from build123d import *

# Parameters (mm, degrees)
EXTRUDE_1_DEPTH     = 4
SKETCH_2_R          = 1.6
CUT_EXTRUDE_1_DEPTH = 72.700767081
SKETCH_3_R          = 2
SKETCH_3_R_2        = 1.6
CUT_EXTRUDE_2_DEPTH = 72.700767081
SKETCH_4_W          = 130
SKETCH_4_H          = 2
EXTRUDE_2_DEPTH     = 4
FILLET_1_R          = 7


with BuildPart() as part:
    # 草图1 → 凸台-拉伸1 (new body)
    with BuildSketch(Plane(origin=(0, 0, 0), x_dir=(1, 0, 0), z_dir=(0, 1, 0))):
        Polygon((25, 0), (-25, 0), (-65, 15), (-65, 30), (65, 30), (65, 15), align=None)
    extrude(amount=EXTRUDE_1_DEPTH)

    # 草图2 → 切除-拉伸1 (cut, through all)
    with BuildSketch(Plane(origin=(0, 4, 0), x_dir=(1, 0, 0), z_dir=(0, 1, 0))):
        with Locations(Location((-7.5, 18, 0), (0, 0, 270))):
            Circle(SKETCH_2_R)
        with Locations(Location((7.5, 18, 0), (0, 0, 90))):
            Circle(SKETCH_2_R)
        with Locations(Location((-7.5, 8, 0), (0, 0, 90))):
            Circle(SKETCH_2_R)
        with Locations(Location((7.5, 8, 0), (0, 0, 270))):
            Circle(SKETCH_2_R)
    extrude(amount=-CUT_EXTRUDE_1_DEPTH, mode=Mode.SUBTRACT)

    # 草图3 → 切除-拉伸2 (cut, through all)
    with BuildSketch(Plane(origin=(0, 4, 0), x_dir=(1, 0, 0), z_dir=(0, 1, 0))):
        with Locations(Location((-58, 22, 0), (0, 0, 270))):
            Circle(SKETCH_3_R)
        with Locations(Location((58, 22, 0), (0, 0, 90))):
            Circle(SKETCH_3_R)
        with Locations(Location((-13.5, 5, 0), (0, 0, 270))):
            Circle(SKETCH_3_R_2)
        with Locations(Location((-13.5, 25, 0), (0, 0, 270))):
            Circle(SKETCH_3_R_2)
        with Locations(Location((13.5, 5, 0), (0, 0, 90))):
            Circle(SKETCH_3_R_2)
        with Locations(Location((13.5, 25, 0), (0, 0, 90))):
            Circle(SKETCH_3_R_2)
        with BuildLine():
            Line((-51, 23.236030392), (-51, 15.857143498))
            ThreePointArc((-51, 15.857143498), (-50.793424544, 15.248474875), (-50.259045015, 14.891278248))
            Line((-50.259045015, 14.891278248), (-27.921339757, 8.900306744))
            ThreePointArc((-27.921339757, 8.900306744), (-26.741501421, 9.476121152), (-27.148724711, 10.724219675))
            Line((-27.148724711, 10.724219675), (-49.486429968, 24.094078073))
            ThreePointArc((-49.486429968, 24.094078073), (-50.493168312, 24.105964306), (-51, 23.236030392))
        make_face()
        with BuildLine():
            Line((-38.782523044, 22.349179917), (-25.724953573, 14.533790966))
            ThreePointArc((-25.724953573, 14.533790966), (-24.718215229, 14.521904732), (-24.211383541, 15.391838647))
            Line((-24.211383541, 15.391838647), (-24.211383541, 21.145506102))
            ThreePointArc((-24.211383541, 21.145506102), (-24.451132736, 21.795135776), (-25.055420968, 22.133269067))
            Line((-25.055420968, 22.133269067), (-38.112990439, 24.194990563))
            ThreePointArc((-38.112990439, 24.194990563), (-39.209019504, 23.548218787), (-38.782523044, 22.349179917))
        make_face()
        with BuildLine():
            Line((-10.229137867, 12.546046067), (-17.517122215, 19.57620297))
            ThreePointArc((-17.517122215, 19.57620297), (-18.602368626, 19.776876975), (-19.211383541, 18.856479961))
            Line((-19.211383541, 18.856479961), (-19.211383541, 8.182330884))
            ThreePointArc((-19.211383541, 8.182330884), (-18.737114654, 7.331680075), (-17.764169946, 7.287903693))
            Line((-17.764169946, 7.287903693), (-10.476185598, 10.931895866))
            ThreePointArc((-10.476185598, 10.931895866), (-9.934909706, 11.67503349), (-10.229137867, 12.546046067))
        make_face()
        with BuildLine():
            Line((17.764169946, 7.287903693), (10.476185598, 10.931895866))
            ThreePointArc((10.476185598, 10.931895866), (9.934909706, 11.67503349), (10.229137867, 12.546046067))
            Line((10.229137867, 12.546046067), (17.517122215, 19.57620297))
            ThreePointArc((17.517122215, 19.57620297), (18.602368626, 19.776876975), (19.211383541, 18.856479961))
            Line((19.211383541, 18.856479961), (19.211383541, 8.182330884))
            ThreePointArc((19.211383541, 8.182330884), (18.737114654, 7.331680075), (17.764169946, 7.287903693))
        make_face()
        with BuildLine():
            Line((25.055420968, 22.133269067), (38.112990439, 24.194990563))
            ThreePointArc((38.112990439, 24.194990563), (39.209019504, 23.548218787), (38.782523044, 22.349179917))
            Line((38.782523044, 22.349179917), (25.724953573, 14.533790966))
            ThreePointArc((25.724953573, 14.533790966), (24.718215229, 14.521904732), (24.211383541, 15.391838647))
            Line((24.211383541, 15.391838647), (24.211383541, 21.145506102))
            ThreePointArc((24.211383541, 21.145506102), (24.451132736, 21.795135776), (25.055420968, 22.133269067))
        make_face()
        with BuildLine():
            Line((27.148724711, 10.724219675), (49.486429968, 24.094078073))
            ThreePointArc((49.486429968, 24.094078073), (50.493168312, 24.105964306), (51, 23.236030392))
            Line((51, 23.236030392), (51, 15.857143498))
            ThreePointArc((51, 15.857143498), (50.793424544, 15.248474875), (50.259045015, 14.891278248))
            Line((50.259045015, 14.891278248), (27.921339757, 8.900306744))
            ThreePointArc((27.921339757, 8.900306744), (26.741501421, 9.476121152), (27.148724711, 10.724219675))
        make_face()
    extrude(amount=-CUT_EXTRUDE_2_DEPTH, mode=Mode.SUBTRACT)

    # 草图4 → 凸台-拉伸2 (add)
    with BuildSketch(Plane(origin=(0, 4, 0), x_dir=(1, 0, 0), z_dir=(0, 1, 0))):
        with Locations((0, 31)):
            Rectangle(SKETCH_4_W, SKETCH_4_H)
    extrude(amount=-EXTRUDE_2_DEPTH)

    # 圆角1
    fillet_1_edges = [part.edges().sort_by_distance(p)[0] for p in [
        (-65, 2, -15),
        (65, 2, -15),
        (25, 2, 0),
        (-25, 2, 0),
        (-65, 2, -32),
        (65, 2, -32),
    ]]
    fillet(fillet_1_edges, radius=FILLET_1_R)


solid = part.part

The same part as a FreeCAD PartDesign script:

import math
import FreeCAD as App
import Part
import Sketcher
from FreeCAD import Vector


def edges_at(feature, points):
    """Names of the edges that pass closest to the given points."""
    edges = feature.Shape.Edges
    near = lambda p: min(range(len(edges)), key=lambda i: edges[i].distToShape(Part.Vertex(*p))[0])
    return sorted({f"Edge{near(p) + 1}" for p in points})

doc = App.newDocument("Part")
body = doc.addObject("PartDesign::Body", "Body")

# Sketch on XZ plane
sketch1 = doc.addObject("Sketcher::SketchObject", "Sketch")
body.addObject(sketch1)
sketch1.AttachmentSupport = (doc.XZ_Plane, [""])
sketch1.MapMode = "FlatFace"
sketch1.addGeometry(Part.LineSegment(Vector(-25, 0, 0), Vector(25, 0, 0)), False)
sketch1.addGeometry(Part.LineSegment(Vector(25, 0, 0), Vector(65, -15, 0)), False)
sketch1.addGeometry(Part.LineSegment(Vector(65, -15, 0), Vector(65, -30, 0)), False)
sketch1.addGeometry(Part.LineSegment(Vector(65, -30, 0), Vector(-65, -30, 0)), False)
sketch1.addGeometry(Part.LineSegment(Vector(-65, -30, 0), Vector(-65, -15, 0)), False)
sketch1.addGeometry(Part.LineSegment(Vector(-65, -15, 0), Vector(-25, 0, 0)), False)
sketch1.addConstraint(Sketcher.Constraint("Coincident", 0, 2, 1, 1))
sketch1.addConstraint(Sketcher.Constraint("Coincident", 1, 2, 2, 1))
sketch1.addConstraint(Sketcher.Constraint("Coincident", 2, 2, 3, 1))
sketch1.addConstraint(Sketcher.Constraint("Coincident", 3, 2, 4, 1))
sketch1.addConstraint(Sketcher.Constraint("Coincident", 4, 2, 5, 1))
sketch1.addConstraint(Sketcher.Constraint("Coincident", 5, 2, 0, 1))
sketch1.addConstraint(Sketcher.Constraint("Horizontal", 0))
sketch1.addConstraint(Sketcher.Constraint("Vertical", 2))
sketch1.addConstraint(Sketcher.Constraint("Horizontal", 3))
sketch1.addConstraint(Sketcher.Constraint("Vertical", 4))
sketch1.addConstraint(Sketcher.Constraint("Symmetric", 0, 2, 5, 2, -1, 1))
sketch1.addConstraint(Sketcher.Constraint("Symmetric", 1, 2, 4, 2, -2))
sketch1.addConstraint(Sketcher.Constraint("DistanceX", 0, 1, 0, 2, 50.0))
sketch1.addConstraint(Sketcher.Constraint("DistanceX", 3, 2, 3, 1, 130.0))
sketch1.addConstraint(Sketcher.Constraint("DistanceY", 2, 2, 2, 1, 15.0))
sketch1.addConstraint(Sketcher.Constraint("DistanceY", 1, 2, -1, 1, 15.0))
pad1 = doc.addObject("PartDesign::Pad", "Pad")
body.addObject(pad1)
pad1.Profile = sketch1
pad1.Length = 4
pad1.Reversed = True

# Sketch on XZ plane
sketch2 = doc.addObject("Sketcher::SketchObject", "Sketch001")
body.addObject(sketch2)
sketch2.AttachmentSupport = (doc.XZ_Plane, [""])
sketch2.MapMode = "FlatFace"
sketch2.AttachmentOffset = App.Placement(Vector(0, 0, -4), App.Rotation())
sketch2.addGeometry(Part.Circle(Vector(-7.5, -18, 0), Vector(0, 0, 1), 1.6), False)
sketch2.addGeometry(Part.Circle(Vector(7.5, -18, 0), Vector(0, 0, 1), 1.6), False)
sketch2.addGeometry(Part.Circle(Vector(-7.5, -8, 0), Vector(0, 0, 1), 1.6), False)
sketch2.addGeometry(Part.Circle(Vector(7.5, -8, 0), Vector(0, 0, 1), 1.6), False)
sketch2.addConstraint(Sketcher.Constraint("Equal", 0, 1))
sketch2.addConstraint(Sketcher.Constraint("Equal", 1, 2))
sketch2.addConstraint(Sketcher.Constraint("Equal", 2, 3))
sketch2.addConstraint(Sketcher.Constraint("Symmetric", 0, 3, 1, 3, -2))
sketch2.addConstraint(Sketcher.Constraint("Symmetric", 2, 3, 3, 3, -2))
sketch2.addConstraint(Sketcher.Constraint("Vertical", 0, 3, 2, 3))
sketch2.addConstraint(Sketcher.Constraint("Diameter", 0, 3.2))
sketch2.addConstraint(Sketcher.Constraint("DistanceY", 0, 3, -1, 1, 18.0))
sketch2.addConstraint(Sketcher.Constraint("DistanceY", 2, 3, -1, 1, 8.0))
sketch2.addConstraint(Sketcher.Constraint("DistanceX", 0, 3, 1, 3, 15.0))
pocket1 = doc.addObject("PartDesign::Pocket", "Pocket")
body.addObject(pocket1)
pocket1.Profile = sketch2
pocket1.Type = "ThroughAll"
pocket1.Reversed = True

# Sketch on XZ plane
sketch3 = doc.addObject("Sketcher::SketchObject", "Sketch002")
body.addObject(sketch3)
sketch3.AttachmentSupport = (doc.XZ_Plane, [""])
sketch3.MapMode = "FlatFace"
sketch3.AttachmentOffset = App.Placement(Vector(0, 0, -4), App.Rotation())
sketch3.addGeometry(Part.Circle(Vector(-58, -22, 0), Vector(0, 0, 1), 2), False)
sketch3.addGeometry(Part.Circle(Vector(58, -22, 0), Vector(0, 0, 1), 2), False)
sketch3.addGeometry(Part.Circle(Vector(-13.5, -5, 0), Vector(0, 0, 1), 1.6), False)
sketch3.addGeometry(Part.Circle(Vector(-13.5, -25, 0), Vector(0, 0, 1), 1.6), False)
sketch3.addGeometry(Part.Circle(Vector(13.5, -5, 0), Vector(0, 0, 1), 1.6), False)
sketch3.addGeometry(Part.Circle(Vector(13.5, -25, 0), Vector(0, 0, 1), 1.6), False)
sketch3.addGeometry(Part.LineSegment(Vector(-51, -23.2, 0), Vector(-51, -15.9, 0)), False)
sketch3.addGeometry(Part.ArcOfCircle(Part.Circle(Vector(-50, -15.9, 0), Vector(0, 0, 1), 1), math.radians(105), math.radians(180)), False)
sketch3.addGeometry(Part.LineSegment(Vector(-50.3, -14.9, 0), Vector(-27.9, -8.9, 0)), False)
sketch3.addGeometry(Part.ArcOfCircle(Part.Circle(Vector(-27.7, -9.9, 0), Vector(0, 0, 1), 1), math.radians(-59), math.radians(105)), False)
sketch3.addGeometry(Part.LineSegment(Vector(-27.1, -10.7, 0), Vector(-49.5, -24.1, 0)), False)
sketch3.addGeometry(Part.ArcOfCircle(Part.Circle(Vector(-50, -23.2, 0), Vector(0, 0, 1), 1), math.radians(-180), math.radians(-59)), False)
sketch3.addGeometry(Part.LineSegment(Vector(-38.8, -22.3, 0), Vector(-25.7, -14.5, 0)), False)
sketch3.addGeometry(Part.ArcOfCircle(Part.Circle(Vector(-25.2, -15.4, 0), Vector(0, 0, 1), 1), math.radians(0), math.radians(121)), False)
sketch3.addGeometry(Part.LineSegment(Vector(-24.2, -15.4, 0), Vector(-24.2, -21.1, 0)), False)
sketch3.addGeometry(Part.ArcOfCircle(Part.Circle(Vector(-25.2, -21.1, 0), Vector(0, 0, 1), 1), math.radians(-81), math.radians(0)), False)
sketch3.addGeometry(Part.LineSegment(Vector(-25.1, -22.1, 0), Vector(-38.1, -24.2, 0)), False)
sketch3.addGeometry(Part.ArcOfCircle(Part.Circle(Vector(-38.3, -23.2, 0), Vector(0, 0, 1), 1), math.radians(121), math.radians(279)), False)
sketch3.addGeometry(Part.LineSegment(Vector(-10.2, -12.5, 0), Vector(-17.5, -19.6, 0)), False)
sketch3.addGeometry(Part.ArcOfCircle(Part.Circle(Vector(-18.2, -18.9, 0), Vector(0, 0, 1), 1), math.radians(180), math.radians(314)), False)
sketch3.addGeometry(Part.LineSegment(Vector(-19.2, -18.9, 0), Vector(-19.2, -8.2, 0)), False)
sketch3.addGeometry(Part.ArcOfCircle(Part.Circle(Vector(-18.2, -8.2, 0), Vector(0, 0, 1), 1), math.radians(63), math.radians(180)), False)
sketch3.addGeometry(Part.LineSegment(Vector(-17.8, -7.3, 0), Vector(-10.5, -10.9, 0)), False)
sketch3.addGeometry(Part.ArcOfCircle(Part.Circle(Vector(-10.9, -11.8, 0), Vector(0, 0, 1), 1), math.radians(-46), math.radians(63)), False)
sketch3.addGeometry(Part.LineSegment(Vector(10.5, -10.9, 0), Vector(17.8, -7.3, 0)), False)
sketch3.addGeometry(Part.ArcOfCircle(Part.Circle(Vector(18.2, -8.2, 0), Vector(0, 0, 1), 1), math.radians(0), math.radians(117)), False)
sketch3.addGeometry(Part.LineSegment(Vector(19.2, -8.2, 0), Vector(19.2, -18.9, 0)), False)
sketch3.addGeometry(Part.ArcOfCircle(Part.Circle(Vector(18.2, -18.9, 0), Vector(0, 0, 1), 1), math.radians(-134), math.radians(0)), False)
sketch3.addGeometry(Part.LineSegment(Vector(17.5, -19.6, 0), Vector(10.2, -12.5, 0)), False)
sketch3.addGeometry(Part.ArcOfCircle(Part.Circle(Vector(10.9, -11.8, 0), Vector(0, 0, 1), 1), math.radians(117), math.radians(226)), False)
sketch3.addGeometry(Part.LineSegment(Vector(38.1, -24.2, 0), Vector(25.1, -22.1, 0)), False)
sketch3.addGeometry(Part.ArcOfCircle(Part.Circle(Vector(25.2, -21.1, 0), Vector(0, 0, 1), 1), math.radians(180), math.radians(261)), False)
sketch3.addGeometry(Part.LineSegment(Vector(24.2, -21.1, 0), Vector(24.2, -15.4, 0)), False)
sketch3.addGeometry(Part.ArcOfCircle(Part.Circle(Vector(25.2, -15.4, 0), Vector(0, 0, 1), 1), math.radians(59), math.radians(180)), False)
sketch3.addGeometry(Part.LineSegment(Vector(25.7, -14.5, 0), Vector(38.8, -22.3, 0)), False)
sketch3.addGeometry(Part.ArcOfCircle(Part.Circle(Vector(38.3, -23.2, 0), Vector(0, 0, 1), 1), math.radians(-99), math.radians(59)), False)
sketch3.addGeometry(Part.LineSegment(Vector(49.5, -24.1, 0), Vector(27.1, -10.7, 0)), False)
sketch3.addGeometry(Part.ArcOfCircle(Part.Circle(Vector(27.7, -9.9, 0), Vector(0, 0, 1), 1), math.radians(75), math.radians(239)), False)
sketch3.addGeometry(Part.LineSegment(Vector(27.9, -8.9, 0), Vector(50.3, -14.9, 0)), False)
sketch3.addGeometry(Part.ArcOfCircle(Part.Circle(Vector(50, -15.9, 0), Vector(0, 0, 1), 1), math.radians(0), math.radians(75)), False)
sketch3.addGeometry(Part.LineSegment(Vector(51, -15.9, 0), Vector(51, -23.2, 0)), False)
sketch3.addGeometry(Part.ArcOfCircle(Part.Circle(Vector(50, -23.2, 0), Vector(0, 0, 1), 1), math.radians(-121), math.radians(0)), False)
sketch3.addConstraint(Sketcher.Constraint("Tangent", 6, 2, 7, 2))
sketch3.addConstraint(Sketcher.Constraint("Tangent", 7, 1, 8, 1))
sketch3.addConstraint(Sketcher.Constraint("Tangent", 8, 2, 9, 2))
sketch3.addConstraint(Sketcher.Constraint("Tangent", 9, 1, 10, 1))
sketch3.addConstraint(Sketcher.Constraint("Tangent", 10, 2, 11, 2))
sketch3.addConstraint(Sketcher.Constraint("Tangent", 11, 1, 6, 1))
sketch3.addConstraint(Sketcher.Constraint("Tangent", 12, 2, 13, 2))
sketch3.addConstraint(Sketcher.Constraint("Tangent", 13, 1, 14, 1))
sketch3.addConstraint(Sketcher.Constraint("Tangent", 14, 2, 15, 2))
sketch3.addConstraint(Sketcher.Constraint("Tangent", 15, 1, 16, 1))
sketch3.addConstraint(Sketcher.Constraint("Tangent", 16, 2, 17, 2))
sketch3.addConstraint(Sketcher.Constraint("Tangent", 17, 1, 12, 1))
sketch3.addConstraint(Sketcher.Constraint("Tangent", 18, 2, 19, 2))
sketch3.addConstraint(Sketcher.Constraint("Tangent", 19, 1, 20, 1))
sketch3.addConstraint(Sketcher.Constraint("Tangent", 20, 2, 21, 2))
sketch3.addConstraint(Sketcher.Constraint("Tangent", 21, 1, 22, 1))
sketch3.addConstraint(Sketcher.Constraint("Tangent", 22, 2, 23, 2))
sketch3.addConstraint(Sketcher.Constraint("Tangent", 23, 1, 18, 1))
sketch3.addConstraint(Sketcher.Constraint("Tangent", 24, 2, 25, 2))
sketch3.addConstraint(Sketcher.Constraint("Tangent", 25, 1, 26, 1))
sketch3.addConstraint(Sketcher.Constraint("Tangent", 26, 2, 27, 2))
sketch3.addConstraint(Sketcher.Constraint("Tangent", 27, 1, 28, 1))
sketch3.addConstraint(Sketcher.Constraint("Tangent", 28, 2, 29, 2))
sketch3.addConstraint(Sketcher.Constraint("Tangent", 29, 1, 24, 1))
sketch3.addConstraint(Sketcher.Constraint("Tangent", 30, 2, 31, 2))
sketch3.addConstraint(Sketcher.Constraint("Tangent", 31, 1, 32, 1))
sketch3.addConstraint(Sketcher.Constraint("Tangent", 32, 2, 33, 2))
sketch3.addConstraint(Sketcher.Constraint("Tangent", 33, 1, 34, 1))
sketch3.addConstraint(Sketcher.Constraint("Tangent", 34, 2, 35, 2))
sketch3.addConstraint(Sketcher.Constraint("Tangent", 35, 1, 30, 1))
sketch3.addConstraint(Sketcher.Constraint("Tangent", 36, 2, 37, 2))
sketch3.addConstraint(Sketcher.Constraint("Tangent", 37, 1, 38, 1))
sketch3.addConstraint(Sketcher.Constraint("Tangent", 38, 2, 39, 2))
sketch3.addConstraint(Sketcher.Constraint("Tangent", 39, 1, 40, 1))
sketch3.addConstraint(Sketcher.Constraint("Tangent", 40, 2, 41, 2))
sketch3.addConstraint(Sketcher.Constraint("Tangent", 41, 1, 36, 1))
sketch3.addConstraint(Sketcher.Constraint("Vertical", 6))
sketch3.addConstraint(Sketcher.Constraint("Vertical", 14))
sketch3.addConstraint(Sketcher.Constraint("Vertical", 20))
sketch3.addConstraint(Sketcher.Constraint("Vertical", 26))
sketch3.addConstraint(Sketcher.Constraint("Vertical", 32))
sketch3.addConstraint(Sketcher.Constraint("Vertical", 40))
sketch3.addConstraint(Sketcher.Constraint("Equal", 0, 1))
sketch3.addConstraint(Sketcher.Constraint("Equal", 2, 3))
sketch3.addConstraint(Sketcher.Constraint("Equal", 3, 4))
sketch3.addConstraint(Sketcher.Constraint("Equal", 4, 5))
sketch3.addConstraint(Sketcher.Constraint("Equal", 7, 9))
sketch3.addConstraint(Sketcher.Constraint("Equal", 9, 11))
sketch3.addConstraint(Sketcher.Constraint("Equal", 11, 13))
sketch3.addConstraint(Sketcher.Constraint("Equal", 13, 15))
sketch3.addConstraint(Sketcher.Constraint("Equal", 15, 17))
sketch3.addConstraint(Sketcher.Constraint("Equal", 17, 19))
sketch3.addConstraint(Sketcher.Constraint("Equal", 19, 21))
sketch3.addConstraint(Sketcher.Constraint("Equal", 21, 23))
sketch3.addConstraint(Sketcher.Constraint("Equal", 23, 25))
sketch3.addConstraint(Sketcher.Constraint("Equal", 25, 27))
sketch3.addConstraint(Sketcher.Constraint("Equal", 27, 29))
sketch3.addConstraint(Sketcher.Constraint("Equal", 29, 31))
sketch3.addConstraint(Sketcher.Constraint("Equal", 31, 33))
sketch3.addConstraint(Sketcher.Constraint("Equal", 33, 35))
sketch3.addConstraint(Sketcher.Constraint("Equal", 35, 37))
sketch3.addConstraint(Sketcher.Constraint("Equal", 37, 39))
sketch3.addConstraint(Sketcher.Constraint("Equal", 39, 41))
sketch3.addConstraint(Sketcher.Constraint("Symmetric", 0, 3, 1, 3, -2))
sketch3.addConstraint(Sketcher.Constraint("Symmetric", 2, 3, 4, 3, -2))
sketch3.addConstraint(Sketcher.Constraint("Symmetric", 3, 3, 5, 3, -2))
sketch3.addConstraint(Sketcher.Constraint("Symmetric", 21, 3, 25, 3, -2))
sketch3.addConstraint(Sketcher.Constraint("Symmetric", 23, 3, 29, 3, -2))
sketch3.addConstraint(Sketcher.Constraint("Symmetric", 15, 3, 31, 3, -2))
sketch3.addConstraint(Sketcher.Constraint("Symmetric", 17, 3, 35, 3, -2))
sketch3.addConstraint(Sketcher.Constraint("Symmetric", 9, 3, 37, 3, -2))
sketch3.addConstraint(Sketcher.Constraint("Symmetric", 7, 3, 39, 3, -2))
sketch3.addConstraint(Sketcher.Constraint("Parallel", 10, 12))
sketch3.addConstraint(Sketcher.Constraint("Parallel", 34, 36))
sketch3.addConstraint(Sketcher.Constraint("Horizontal", 19, 3, 27, 3))
sketch3.addConstraint(Sketcher.Constraint("Horizontal", 13, 3, 33, 3))
sketch3.addConstraint(Sketcher.Constraint("Vertical", 2, 3, 3, 3))
sketch3.addConstraint(Sketcher.Constraint("Diameter", 0, 4.0))
sketch3.addConstraint(Sketcher.Constraint("Radius", 7, 1.0))
sketch3.addConstraint(Sketcher.Constraint("Diameter", 2, 3.2))
sketch3.addConstraint(Sketcher.Constraint("DistanceX", 0, 3, -1, 1, 58.0))
sketch3.addConstraint(Sketcher.Constraint("DistanceY", 0, 3, -1, 1, 22.0))
sketch3.addConstraint(Sketcher.Constraint("DistanceY", 2, 3, -1, 1, 5.0))
sketch3.addConstraint(Sketcher.Constraint("DistanceY", 3, 3, -1, 1, 25.0))
sketch3.addConstraint(Sketcher.Constraint("DistanceX", 7, 3, -1, 1, 50.0))
sketch3.addConstraint(Sketcher.Constraint("DistanceX", 2, 3, 4, 3, 27.0))
sketch3.addConstraint(Sketcher.Constraint("DistanceX", 15, 3, 19, 3, 7.0))
sketch3.addConstraint(Sketcher.Constraint("DistanceY", 20, 1, 20, 2, 10.674149))
sketch3.addConstraint(Sketcher.Constraint("DistanceX", 23, 3, -1, 1, 10.923399))
sketch3.addConstraint(Sketcher.Constraint("DistanceY", 15, 3, 8, 2, 12.245199))
sketch3.addConstraint(Sketcher.Constraint("DistanceY", 10, 2, 7, 1, 9.2028))
sketch3.addConstraint(Sketcher.Constraint("DistanceY", 10, 2, 17, 1, 1.744898))
sketch3.addConstraint(Sketcher.Constraint("DistanceX", 27, 1, 30, 2, 7.538299))
sketch3.addConstraint(Sketcher.Constraint("DistanceY", 6, 1, 6, 2, 7.378887))
sketch3.addConstraint(Sketcher.Constraint("DistanceY", 14, 2, 14, 1, 5.753667))
sketch3.addConstraint(Sketcher.Constraint("DistanceY", 9, 3, -1, 1, 9.866172))
sketch3.addConstraint(Sketcher.Constraint("DistanceY", 11, 3, -1, 1, 23.23603))
sketch3.addConstraint(Sketcher.Constraint("DistanceY", 19, 3, -1, 1, 18.85648))
sketch3.addConstraint(Sketcher.Constraint("DistanceX", 15, 1, -1, 1, 25.055421))
pocket2 = doc.addObject("PartDesign::Pocket", "Pocket001")
body.addObject(pocket2)
pocket2.Profile = sketch3
pocket2.Type = "ThroughAll"
pocket2.Reversed = True

# Sketch on XZ plane
sketch4 = doc.addObject("Sketcher::SketchObject", "Sketch003")
body.addObject(sketch4)
sketch4.AttachmentSupport = (doc.XZ_Plane, [""])
sketch4.MapMode = "FlatFace"
sketch4.AttachmentOffset = App.Placement(Vector(0, 0, -4), App.Rotation())
sketch4.addGeometry(Part.LineSegment(Vector(-65, -32, 0), Vector(-65, -30, 0)), False)
sketch4.addGeometry(Part.LineSegment(Vector(-65, -30, 0), Vector(65, -30, 0)), False)
sketch4.addGeometry(Part.LineSegment(Vector(65, -30, 0), Vector(65, -32, 0)), False)
sketch4.addGeometry(Part.LineSegment(Vector(65, -32, 0), Vector(-65, -32, 0)), False)
sketch4.addConstraint(Sketcher.Constraint("Coincident", 0, 2, 1, 1))
sketch4.addConstraint(Sketcher.Constraint("Coincident", 1, 2, 2, 1))
sketch4.addConstraint(Sketcher.Constraint("Coincident", 2, 2, 3, 1))
sketch4.addConstraint(Sketcher.Constraint("Coincident", 3, 2, 0, 1))
sketch4.addConstraint(Sketcher.Constraint("Vertical", 0))
sketch4.addConstraint(Sketcher.Constraint("Horizontal", 1))
sketch4.addConstraint(Sketcher.Constraint("Vertical", 2))
sketch4.addConstraint(Sketcher.Constraint("Horizontal", 3))
sketch4.addConstraint(Sketcher.Constraint("DistanceX", 1, 1, 1, 2, 130.0))
sketch4.addConstraint(Sketcher.Constraint("DistanceY", 0, 1, 0, 2, 2.0))
sketch4.addConstraint(Sketcher.Constraint("DistanceX", 0, 2, -1, 1, 65.0))
sketch4.addConstraint(Sketcher.Constraint("DistanceY", 0, 2, -1, 1, 30.0))
pad2 = doc.addObject("PartDesign::Pad", "Pad001")
body.addObject(pad2)
pad2.Profile = sketch4
pad2.Length = 4
doc.recompute()

fillet = doc.addObject("PartDesign::Fillet", "Fillet")
body.addObject(fillet)
fillet.Base = (pad2, edges_at(pad2, [
    (-65, 2, -15),
    (65, 2, -15),
    (25, 2, 0),
    (-25, 2, 0),
    (-65, 2, -32),
    (65, 2, -32),
]))
fillet.Radius = 7

doc.recompute()
